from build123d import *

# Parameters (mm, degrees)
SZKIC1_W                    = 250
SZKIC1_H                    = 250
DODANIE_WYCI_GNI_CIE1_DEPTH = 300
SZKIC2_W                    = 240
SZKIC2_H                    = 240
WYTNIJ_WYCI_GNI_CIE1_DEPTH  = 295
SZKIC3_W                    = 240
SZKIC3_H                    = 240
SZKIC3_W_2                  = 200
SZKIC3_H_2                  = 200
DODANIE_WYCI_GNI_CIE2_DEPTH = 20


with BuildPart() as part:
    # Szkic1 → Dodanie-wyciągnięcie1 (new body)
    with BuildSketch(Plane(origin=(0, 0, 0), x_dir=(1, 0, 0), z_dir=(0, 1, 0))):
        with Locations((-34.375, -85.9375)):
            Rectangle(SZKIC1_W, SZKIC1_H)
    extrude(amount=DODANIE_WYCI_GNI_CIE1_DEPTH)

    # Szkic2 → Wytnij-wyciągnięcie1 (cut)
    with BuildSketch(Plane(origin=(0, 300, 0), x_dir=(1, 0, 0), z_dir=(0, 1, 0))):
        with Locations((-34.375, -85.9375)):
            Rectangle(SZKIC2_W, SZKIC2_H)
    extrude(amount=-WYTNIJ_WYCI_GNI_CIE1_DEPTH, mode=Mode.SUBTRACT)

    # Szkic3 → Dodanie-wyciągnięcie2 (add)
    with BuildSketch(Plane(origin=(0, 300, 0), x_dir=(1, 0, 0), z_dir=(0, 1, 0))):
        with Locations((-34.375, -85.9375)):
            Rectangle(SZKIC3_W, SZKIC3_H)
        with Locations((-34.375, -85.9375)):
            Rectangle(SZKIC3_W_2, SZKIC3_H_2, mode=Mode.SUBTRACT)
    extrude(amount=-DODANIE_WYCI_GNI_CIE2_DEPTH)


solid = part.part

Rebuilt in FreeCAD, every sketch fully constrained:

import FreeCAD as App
import Part
import Sketcher

doc = App.newDocument("Part")
body = doc.addObject("PartDesign::Body", "Body")

sketch1 = doc.addObject("Sketcher::SketchObject", "Sketch")
body.addObject(sketch1)
sketch1.AttachmentSupport = (doc.XZ_Plane, [""])
sketch1.MapMode = "FlatFace"
sketch1.addGeometry([
    Part.LineSegment(App.Vector(-159, -39, 0), App.Vector(-159, 211, 0)),
    Part.LineSegment(App.Vector(-159, 211, 0), App.Vector(91, 211, 0)),
    Part.LineSegment(App.Vector(91, 211, 0), App.Vector(91, -39, 0)),
    Part.LineSegment(App.Vector(91, -39, 0), App.Vector(-159, -39, 0)),
], False)
sketch1.addConstraint([
    Sketcher.Constraint("Coincident", 0, 2, 1, 1),
    Sketcher.Constraint("Coincident", 1, 2, 2, 1),
    Sketcher.Constraint("Coincident", 2, 2, 3, 1),
    Sketcher.Constraint("Coincident", 3, 2, 0, 1),
    Sketcher.Constraint("Vertical", 0),
    Sketcher.Constraint("Horizontal", 1),
    Sketcher.Constraint("Vertical", 2),
    Sketcher.Constraint("Horizontal", 3),
    Sketcher.Constraint("Equal", 3, 0),
    Sketcher.Constraint("DistanceX", 1, 1, 1, 2, 250.0),
    Sketcher.Constraint("DistanceX", 0, 2, -1, 1, 159.375),
    Sketcher.Constraint("DistanceY", -1, 1, 0, 2, 210.9375),
])
pad1 = doc.addObject("PartDesign::Pad", "Pad")
body.addObject(pad1)
pad1.Profile = sketch1
pad1.Length = 300
pad1.Reversed = True

sketch2 = doc.addObject("Sketcher::SketchObject", "Sketch001")
body.addObject(sketch2)
sketch2.AttachmentSupport = (doc.XZ_Plane, [""])
sketch2.MapMode = "FlatFace"
sketch2.AttachmentOffset = App.Placement(App.Vector(0, 0, -300), App.Rotation())
sketch2.addGeometry([
    Part.LineSegment(App.Vector(-154, -34, 0), App.Vector(-154, 206, 0)),
    Part.LineSegment(App.Vector(-154, 206, 0), App.Vector(86, 206, 0)),
    Part.LineSegment(App.Vector(86, 206, 0), App.Vector(86, -34, 0)),
    Part.LineSegment(App.Vector(86, -34, 0), App.Vector(-154, -34, 0)),
], False)
sketch2.addConstraint([
    Sketcher.Constraint("Coincident", 0, 2, 1, 1),
    Sketcher.Constraint("Coincident", 1, 2, 2, 1),
    Sketcher.Constraint("Coincident", 2, 2, 3, 1),
    Sketcher.Constraint("Coincident", 3, 2, 0, 1),
    Sketcher.Constraint("Vertical", 0),
    Sketcher.Constraint("Horizontal", 1),
    Sketcher.Constraint("Vertical", 2),
    Sketcher.Constraint("Horizontal", 3),
    Sketcher.Constraint("Equal", 3, 0),
    Sketcher.Constraint("DistanceX", 1, 1, 1, 2, 240.0),
    Sketcher.Constraint("DistanceX", 0, 2, -1, 1, 154.375),
    Sketcher.Constraint("DistanceY", -1, 1, 0, 2, 205.9375),
])
pocket1 = doc.addObject("PartDesign::Pocket", "Pocket")
body.addObject(pocket1)
pocket1.Profile = sketch2
pocket1.Length = 295
pocket1.Reversed = True

sketch3 = doc.addObject("Sketcher::SketchObject", "Sketch002")
body.addObject(sketch3)
sketch3.AttachmentSupport = (doc.XZ_Plane, [""])
sketch3.MapMode = "FlatFace"
sketch3.AttachmentOffset = App.Placement(App.Vector(0, 0, -300), App.Rotation())
sketch3.addGeometry([
    Part.LineSegment(App.Vector(-154, -34, 0), App.Vector(-154, 206, 0)),
    Part.LineSegment(App.Vector(-154, 206, 0), App.Vector(86, 206, 0)),
    Part.LineSegment(App.Vector(86, 206, 0), App.Vector(86, -34, 0)),
    Part.LineSegment(App.Vector(86, -34, 0), App.Vector(-154, -34, 0)),
    Part.LineSegment(App.Vector(66, 186, 0), App.Vector(-134, 186, 0)),
    Part.LineSegment(App.Vector(-134, 186, 0), App.Vector(-134, -14, 0)),
    Part.LineSegment(App.Vector(-134, -14, 0), App.Vector(66, -14, 0)),
    Part.LineSegment(App.Vector(66, -14, 0), App.Vector(66, 186, 0)),
], False)
sketch3.addConstraint([
    Sketcher.Constraint("Coincident", 0, 2, 1, 1),
    Sketcher.Constraint("Coincident", 1, 2, 2, 1),
    Sketcher.Constraint("Coincident", 2, 2, 3, 1),
    Sketcher.Constraint("Coincident", 3, 2, 0, 1),
    Sketcher.Constraint("Coincident", 4, 2, 5, 1),
    Sketcher.Constraint("Coincident", 5, 2, 6, 1),
    Sketcher.Constraint("Coincident", 6, 2, 7, 1),
    Sketcher.Constraint("Coincident", 7, 2, 4, 1),
    Sketcher.Constraint("Vertical", 0),
    Sketcher.Constraint("Horizontal", 1),
    Sketcher.Constraint("Vertical", 2),
    Sketcher.Constraint("Horizontal", 3),
    Sketcher.Constraint("Horizontal", 4),
    Sketcher.Constraint("Vertical", 5),
    Sketcher.Constraint("Horizontal", 6),
    Sketcher.Constraint("Vertical", 7),
    Sketcher.Constraint("Equal", 3, 0),
    Sketcher.Constraint("Equal", 6, 5),
    Sketcher.Constraint("DistanceX", 1, 1, 1, 2, 240.0),
    Sketcher.Constraint("DistanceX", 4, 2, 4, 1, 200.0),
    Sketcher.Constraint("DistanceX", 0, 2, 4, 2, 20.0),
    Sketcher.Constraint("DistanceY", 4, 2, 0, 2, 20.0),
    Sketcher.Constraint("DistanceX", 0, 2, -1, 1, 154.375),
    Sketcher.Constraint("DistanceY", -1, 1, 0, 2, 205.9375),
])
pad2 = doc.addObject("PartDesign::Pad", "Pad001")
body.addObject(pad2)
pad2.Profile = sketch3
pad2.Length = 20

doc.recompute()
